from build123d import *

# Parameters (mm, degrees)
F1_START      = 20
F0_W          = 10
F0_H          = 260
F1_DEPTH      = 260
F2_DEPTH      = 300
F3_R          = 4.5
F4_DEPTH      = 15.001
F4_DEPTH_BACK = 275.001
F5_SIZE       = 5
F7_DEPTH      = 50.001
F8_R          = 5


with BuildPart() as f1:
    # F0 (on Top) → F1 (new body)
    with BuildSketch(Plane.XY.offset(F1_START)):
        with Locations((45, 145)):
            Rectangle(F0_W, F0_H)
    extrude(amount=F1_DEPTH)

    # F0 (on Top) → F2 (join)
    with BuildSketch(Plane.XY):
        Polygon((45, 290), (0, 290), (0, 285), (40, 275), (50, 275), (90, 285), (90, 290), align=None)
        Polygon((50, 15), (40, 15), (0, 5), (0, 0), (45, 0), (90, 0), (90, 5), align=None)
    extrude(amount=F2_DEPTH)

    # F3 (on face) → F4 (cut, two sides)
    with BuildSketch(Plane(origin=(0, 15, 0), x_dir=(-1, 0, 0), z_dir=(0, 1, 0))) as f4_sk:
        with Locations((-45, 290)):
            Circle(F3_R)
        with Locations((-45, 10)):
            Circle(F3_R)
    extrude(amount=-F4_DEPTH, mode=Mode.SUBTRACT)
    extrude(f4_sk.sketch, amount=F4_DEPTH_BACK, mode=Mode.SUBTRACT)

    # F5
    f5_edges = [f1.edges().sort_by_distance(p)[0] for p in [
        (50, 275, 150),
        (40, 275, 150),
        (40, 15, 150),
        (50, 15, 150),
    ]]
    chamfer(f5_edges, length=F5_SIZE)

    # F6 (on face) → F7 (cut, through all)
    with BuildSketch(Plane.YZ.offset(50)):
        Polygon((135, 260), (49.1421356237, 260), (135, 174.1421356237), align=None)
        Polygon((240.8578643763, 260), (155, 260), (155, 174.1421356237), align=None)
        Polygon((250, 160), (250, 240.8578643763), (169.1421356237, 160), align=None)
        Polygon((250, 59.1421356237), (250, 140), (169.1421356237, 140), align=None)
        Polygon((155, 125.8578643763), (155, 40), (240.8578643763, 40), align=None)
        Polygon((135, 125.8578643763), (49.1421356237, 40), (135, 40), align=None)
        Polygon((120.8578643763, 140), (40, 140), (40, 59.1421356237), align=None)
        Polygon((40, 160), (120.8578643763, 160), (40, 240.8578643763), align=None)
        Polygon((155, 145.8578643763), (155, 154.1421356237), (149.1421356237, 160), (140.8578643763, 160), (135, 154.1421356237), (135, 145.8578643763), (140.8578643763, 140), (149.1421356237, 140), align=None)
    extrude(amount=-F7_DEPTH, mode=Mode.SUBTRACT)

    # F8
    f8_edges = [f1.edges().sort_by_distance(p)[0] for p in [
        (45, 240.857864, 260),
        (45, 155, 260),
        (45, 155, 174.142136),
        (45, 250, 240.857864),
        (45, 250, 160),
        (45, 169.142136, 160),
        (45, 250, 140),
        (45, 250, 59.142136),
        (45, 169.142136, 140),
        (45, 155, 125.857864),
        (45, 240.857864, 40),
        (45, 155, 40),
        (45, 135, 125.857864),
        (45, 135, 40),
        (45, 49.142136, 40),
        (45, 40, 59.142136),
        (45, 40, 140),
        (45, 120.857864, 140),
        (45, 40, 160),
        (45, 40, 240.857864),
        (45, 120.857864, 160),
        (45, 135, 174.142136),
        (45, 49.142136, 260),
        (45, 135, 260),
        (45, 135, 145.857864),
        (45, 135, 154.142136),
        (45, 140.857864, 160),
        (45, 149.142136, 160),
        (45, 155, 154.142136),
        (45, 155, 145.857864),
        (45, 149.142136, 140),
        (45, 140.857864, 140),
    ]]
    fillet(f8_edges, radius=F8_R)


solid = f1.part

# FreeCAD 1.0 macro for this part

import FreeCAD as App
import Part
import Sketcher

V = App.Vector
Q = App.Units.Quantity


def edges_at(feature, points):
    """Names of the edges that pass closest to the given points."""
    edges = feature.Shape.Edges
    near = lambda p: min(range(len(edges)), key=lambda i: edges[i].distToShape(Part.Vertex(*p))[0])
    return sorted({f"Edge{near(p) + 1}" for p in points})


def add_polygon(sketch, points):
    """Adds a closed chain of lines whose ends are joined by coincident constraints."""
    first, n = sketch.GeometryCount, len(points)
    for a, b in zip(points, points[1:] + points[:1]):
        sketch.addGeometry(Part.LineSegment(App.Vector(*a, 0), App.Vector(*b, 0)), False)
    for i in range(n):
        sketch.addConstraint(Sketcher.Constraint("Coincident", first + i, 2, first + (i + 1) % n, 1))

doc = App.newDocument("Part")
body = doc.addObject("PartDesign::Body", "Body")

sketch1 = doc.addObject("Sketcher::SketchObject", "Sketch")
body.addObject(sketch1)
sketch1.AttachmentSupport = (doc.XY_Plane, [""])
sketch1.MapMode = "FlatFace"
sketch1.AttachmentOffset = App.Placement(V(0, 0, 20), App.Rotation())
add_polygon(sketch1, [(40, 275), (40, 15), (50, 15), (50, 275)])
sketch1.addConstraint([
    Sketcher.Constraint("Vertical", 0),
    Sketcher.Constraint("Horizontal", 1),
    Sketcher.Constraint("Vertical", 2),
    Sketcher.Constraint("Horizontal", 3),
    Sketcher.Constraint("DistanceX", 1, 1, 1, 2, Q("10 mm")),
    Sketcher.Constraint("DistanceY", 0, 2, 0, 1, Q("260 mm")),
    Sketcher.Constraint("DistanceX", -1, 1, 0, 2, Q("40 mm")),
    Sketcher.Constraint("DistanceY", -1, 1, 0, 2, Q("15 mm")),
])
pad1 = doc.addObject("PartDesign::Pad", "Pad")
body.addObject(pad1)
pad1.Profile = sketch1
pad1.Length = 260

sketch2 = doc.addObject("Sketcher::SketchObject", "Sketch001")
body.addObject(sketch2)
sketch2.AttachmentSupport = (doc.XY_Plane, [""])
sketch2.MapMode = "FlatFace"
add_polygon(sketch2, [(0, 290), (0, 285), (40, 275), (50, 275), (90, 285), (90, 290)])
add_polygon(sketch2, [(50, 15), (40, 15), (0, 5), (0, 0), (90, 0), (90, 5)])
sketch2.addConstraint([
    Sketcher.Constraint("Vertical", 0),
    Sketcher.Constraint("Horizontal", 2),
    Sketcher.Constraint("Vertical", 4),
    Sketcher.Constraint("Horizontal", 5),
    Sketcher.Constraint("Horizontal", 6),
    Sketcher.Constraint("Vertical", 8),
    Sketcher.Constraint("Horizontal", 9),
    Sketcher.Constraint("Vertical", 10),
    Sketcher.Constraint("Coincident", 8, 2, -1, 1),
    Sketcher.Constraint("PointOnObject", 0, 2, -2),
    Sketcher.Constraint("Parallel", 3, 7),
    Sketcher.Constraint("Parallel", 1, 11),
    Sketcher.Constraint("Horizontal", 0, 2, 3, 2),
    Sketcher.Constraint("Horizontal", 7, 2, 10, 2),
    Sketcher.Constraint("Vertical", 1, 2, 6, 2),
    Sketcher.Constraint("Vertical", 4, 2, 9, 2),
    Sketcher.Constraint("Vertical", 2, 2, 11, 2),
    Sketcher.Constraint("Equal", 4, 8),
    Sketcher.Constraint("DistanceX", 2, 1, 2, 2, Q("10 mm")),
    Sketcher.Constraint("DistanceX", 5, 2, 5, 1, Q("90 mm")),
    Sketcher.Constraint("DistanceY", 0, 2, 0, 1, Q("5 mm")),
    Sketcher.Constraint("DistanceY", -1, 1, 0, 2, Q("285 mm")),
    Sketcher.Constraint("DistanceY", -1, 1, 1, 2, Q("275 mm")),
])
pad2 = doc.addObject("PartDesign::Pad", "Pad001")
body.addObject(pad2)
pad2.Profile = sketch2
pad2.Length = 300

sketch3 = doc.addObject("Sketcher::SketchObject", "Sketch002")
body.addObject(sketch3)
sketch3.AttachmentSupport = (doc.XZ_Plane, [""])
sketch3.MapMode = "FlatFace"
sketch3.AttachmentOffset = App.Placement(V(0, 0, -15), App.Rotation())
sketch3.addGeometry([
    Part.Circle(V(45, 290, 0), V(0, 0, 1), 4.5),
    Part.Circle(V(45, 10, 0), V(0, 0, 1), 4.5),
], False)
sketch3.addConstraint([
    Sketcher.Constraint("Equal", 0, 1),
    Sketcher.Constraint("Vertical", 0, 3, 1, 3),
    Sketcher.Constraint("Diameter", 0, Q("9 mm")),
    Sketcher.Constraint("DistanceX", -1, 1, 0, 3, Q("45 mm")),
    Sketcher.Constraint("DistanceY", -1, 1, 0, 3, Q("290 mm")),
    Sketcher.Constraint("DistanceY", -1, 1, 1, 3, Q("10 mm")),
])
pocket1 = doc.addObject("PartDesign::Pocket", "Pocket")
body.addObject(pocket1)
pocket1.Profile = sketch3
pocket1.Type = "ThroughAll"
pocket1.Midplane = True
doc.recompute()

chamfer = doc.addObject("PartDesign::Chamfer", "Chamfer")
body.addObject(chamfer)
chamfer.Base = (pocket1, edges_at(pocket1, [
    (50, 275, 150),
    (40, 275, 150),
    (40, 15, 150),
    (50, 15, 150),
]))
chamfer.Size = 5

sketch4 = doc.addObject("Sketcher::SketchObject", "Sketch003")
body.addObject(sketch4)
sketch4.AttachmentSupport = (doc.YZ_Plane, [""])
sketch4.MapMode = "FlatFace"
sketch4.AttachmentOffset = App.Placement(V(0, 0, 50), App.Rotation())
add_polygon(sketch4, [(135, 260), (49, 260), (135, 174)])
add_polygon(sketch4, [(241, 260), (155, 260), (155, 174)])
add_polygon(sketch4, [(250, 160), (250, 241), (169, 160)])
add_polygon(sketch4, [(250, 59), (250, 140), (169, 140)])
add_polygon(sketch4, [(155, 126), (155, 40), (241, 40)])
add_polygon(sketch4, [(135, 126), (49, 40), (135, 40)])
add_polygon(sketch4, [(121, 140), (40, 140), (40, 59)])
add_polygon(sketch4, [(40, 160), (121, 160), (40, 241)])
add_polygon(sketch4, [(155, 146), (155, 154), (149, 160), (141, 160), (135, 154), (135, 146), (141, 140), (149, 140)])
sketch4.addConstraint([
    Sketcher.Constraint("Horizontal", 0),
    Sketcher.Constraint("Vertical", 2),
    Sketcher.Constraint("Horizontal", 3),
    Sketcher.Constraint("Vertical", 4),
    Sketcher.Constraint("Vertical", 6),
    Sketcher.Constraint("Horizontal", 8),
    Sketcher.Constraint("Vertical", 9),
    Sketcher.Constraint("Horizontal", 10),
    Sketcher.Constraint("Vertical", 12),
    Sketcher.Constraint("Horizontal", 13),
    Sketcher.Constraint("Horizontal", 16),
    Sketcher.Constraint("Vertical", 17),
    Sketcher.Constraint("Horizontal", 18),
    Sketcher.Constraint("Vertical", 19),
    Sketcher.Constraint("Horizontal", 21),
    Sketcher.Constraint("Vertical", 23),
    Sketcher.Constraint("Vertical", 24),
    Sketcher.Constraint("Horizontal", 26),
    Sketcher.Constraint("Vertical", 28),
    Sketcher.Constraint("Horizontal", 30),
    Sketcher.Constraint("Perpendicular", 1, 5),
    Sketcher.Constraint("Parallel", 5, 7),
    Sketcher.Constraint("Perpendicular", 7, 11),
    Sketcher.Constraint("Parallel", 11, 14),
    Sketcher.Constraint("Perpendicular", 14, 15),
    Sketcher.Constraint("Parallel", 15, 20),
    Sketcher.Constraint("Perpendicular", 20, 22),
    Sketcher.Constraint("Parallel", 22, 25),
    Sketcher.Constraint("Perpendicular", 25, 27),
    Sketcher.Constraint("Perpendicular", 27, 29),
    Sketcher.Constraint("Perpendicular", 29, 31),
    Sketcher.Constraint("Horizontal", 2, 2, 3, 2),
    Sketcher.Constraint("Horizontal", 1, 2, 4, 2),
    Sketcher.Constraint("Horizontal", 13, 2, 15, 2),
    Sketcher.Constraint("Horizontal", 14, 2, 17, 2),
    Sketcher.Constraint("Horizontal", 10, 2, 18, 2),
    Sketcher.Constraint("Horizontal", 11, 2, 19, 2),
    Sketcher.Constraint("Horizontal", 8, 2, 21, 2),
    Sketcher.Constraint("Horizontal", 6, 2, 22, 2),
    Sketcher.Constraint("Horizontal", 23, 2, 25, 2),
    Sketcher.Constraint("Horizontal", 24, 2, 27, 2),
    Sketcher.Constraint("Horizontal", 20, 2, 29, 2),
    Sketcher.Constraint("Horizontal", 28, 2, 31, 2),
    Sketcher.Constraint("Vertical", 8, 2, 9, 2),
    Sketcher.Constraint("Vertical", 7, 2, 10, 2),
    Sketcher.Constraint("Vertical", 4, 2, 12, 2),
    Sketcher.Constraint("Vertical", 5, 2, 13, 2),
    Sketcher.Constraint("Vertical", 0, 2, 15, 2),
    Sketcher.Constraint("Vertical", 2, 2, 16, 2),
    Sketcher.Constraint("Vertical", 20, 2, 21, 2),
    Sketcher.Constraint("Vertical", 14, 2, 24, 2),
    Sketcher.Constraint("Vertical", 17, 2, 27, 2),
    Sketcher.Constraint("Vertical", 26, 2, 29, 2),
    Sketcher.Constraint("Equal", 30, 24),
    Sketcher.Constraint("DistanceY", -1, 1, 0, 2, Q("260 mm")),
    Sketcher.Constraint("DistanceX", -1, 1, 1, 2, Q("135 mm")),
    Sketcher.Constraint("DistanceX", -1, 1, 3, 2, Q("155 mm")),
    Sketcher.Constraint("DistanceX", -1, 1, 6, 2, Q("250 mm")),
    Sketcher.Constraint("DistanceY", -1, 1, 7, 2, Q("160 mm")),
    Sketcher.Constraint("DistanceY", -1, 1, 12, 2, Q("40 mm")),
    Sketcher.Constraint("DistanceX", -1, 1, 18, 2, Q("40 mm")),
    Sketcher.Constraint("DistanceY", 11, 2, 4, 2, Q("115 mm")),
    Sketcher.Constraint("DistanceY", 24, 2, 4, 2, Q("20 mm")),
    Sketcher.Constraint("DistanceX", 26, 2, 26, 1, Q("8.284271 mm")),
])
pocket2 = doc.addObject("PartDesign::Pocket", "Pocket001")
body.addObject(pocket2)
pocket2.Profile = sketch4
pocket2.Type = "ThroughAll"
doc.recompute()

fillet = doc.addObject("PartDesign::Fillet", "Fillet")
body.addObject(fillet)
fillet.Base = (pocket2, edges_at(pocket2, [
    (45, 240.858, 260),
    (45, 155, 260),
    (45, 155, 174.142),
    (45, 250, 240.858),
    (45, 250, 160),
    (45, 169.142, 160),
    (45, 250, 140),
    (45, 250, 59.142),
    (45, 169.142, 140),
    (45, 155, 125.858),
    (45, 240.858, 40),
    (45, 155, 40),
    (45, 135, 125.858),
    (45, 135, 40),
    (45, 49.142, 40),
    (45, 40, 59.142),
    (45, 40, 140),
    (45, 120.858, 140),
    (45, 40, 160),
    (45, 40, 240.858),
    (45, 120.858, 160),
    (45, 135, 174.142),
    (45, 49.142, 260),
    (45, 135, 260),
    (45, 135, 145.858),
    (45, 135, 154.142),
    (45, 140.858, 160),
    (45, 149.142, 160),
    (45, 155, 154.142),
    (45, 155, 145.858),
    (45, 149.142, 140),
    (45, 140.858, 140),
]))
fillet.Radius = 5

doc.recompute()
